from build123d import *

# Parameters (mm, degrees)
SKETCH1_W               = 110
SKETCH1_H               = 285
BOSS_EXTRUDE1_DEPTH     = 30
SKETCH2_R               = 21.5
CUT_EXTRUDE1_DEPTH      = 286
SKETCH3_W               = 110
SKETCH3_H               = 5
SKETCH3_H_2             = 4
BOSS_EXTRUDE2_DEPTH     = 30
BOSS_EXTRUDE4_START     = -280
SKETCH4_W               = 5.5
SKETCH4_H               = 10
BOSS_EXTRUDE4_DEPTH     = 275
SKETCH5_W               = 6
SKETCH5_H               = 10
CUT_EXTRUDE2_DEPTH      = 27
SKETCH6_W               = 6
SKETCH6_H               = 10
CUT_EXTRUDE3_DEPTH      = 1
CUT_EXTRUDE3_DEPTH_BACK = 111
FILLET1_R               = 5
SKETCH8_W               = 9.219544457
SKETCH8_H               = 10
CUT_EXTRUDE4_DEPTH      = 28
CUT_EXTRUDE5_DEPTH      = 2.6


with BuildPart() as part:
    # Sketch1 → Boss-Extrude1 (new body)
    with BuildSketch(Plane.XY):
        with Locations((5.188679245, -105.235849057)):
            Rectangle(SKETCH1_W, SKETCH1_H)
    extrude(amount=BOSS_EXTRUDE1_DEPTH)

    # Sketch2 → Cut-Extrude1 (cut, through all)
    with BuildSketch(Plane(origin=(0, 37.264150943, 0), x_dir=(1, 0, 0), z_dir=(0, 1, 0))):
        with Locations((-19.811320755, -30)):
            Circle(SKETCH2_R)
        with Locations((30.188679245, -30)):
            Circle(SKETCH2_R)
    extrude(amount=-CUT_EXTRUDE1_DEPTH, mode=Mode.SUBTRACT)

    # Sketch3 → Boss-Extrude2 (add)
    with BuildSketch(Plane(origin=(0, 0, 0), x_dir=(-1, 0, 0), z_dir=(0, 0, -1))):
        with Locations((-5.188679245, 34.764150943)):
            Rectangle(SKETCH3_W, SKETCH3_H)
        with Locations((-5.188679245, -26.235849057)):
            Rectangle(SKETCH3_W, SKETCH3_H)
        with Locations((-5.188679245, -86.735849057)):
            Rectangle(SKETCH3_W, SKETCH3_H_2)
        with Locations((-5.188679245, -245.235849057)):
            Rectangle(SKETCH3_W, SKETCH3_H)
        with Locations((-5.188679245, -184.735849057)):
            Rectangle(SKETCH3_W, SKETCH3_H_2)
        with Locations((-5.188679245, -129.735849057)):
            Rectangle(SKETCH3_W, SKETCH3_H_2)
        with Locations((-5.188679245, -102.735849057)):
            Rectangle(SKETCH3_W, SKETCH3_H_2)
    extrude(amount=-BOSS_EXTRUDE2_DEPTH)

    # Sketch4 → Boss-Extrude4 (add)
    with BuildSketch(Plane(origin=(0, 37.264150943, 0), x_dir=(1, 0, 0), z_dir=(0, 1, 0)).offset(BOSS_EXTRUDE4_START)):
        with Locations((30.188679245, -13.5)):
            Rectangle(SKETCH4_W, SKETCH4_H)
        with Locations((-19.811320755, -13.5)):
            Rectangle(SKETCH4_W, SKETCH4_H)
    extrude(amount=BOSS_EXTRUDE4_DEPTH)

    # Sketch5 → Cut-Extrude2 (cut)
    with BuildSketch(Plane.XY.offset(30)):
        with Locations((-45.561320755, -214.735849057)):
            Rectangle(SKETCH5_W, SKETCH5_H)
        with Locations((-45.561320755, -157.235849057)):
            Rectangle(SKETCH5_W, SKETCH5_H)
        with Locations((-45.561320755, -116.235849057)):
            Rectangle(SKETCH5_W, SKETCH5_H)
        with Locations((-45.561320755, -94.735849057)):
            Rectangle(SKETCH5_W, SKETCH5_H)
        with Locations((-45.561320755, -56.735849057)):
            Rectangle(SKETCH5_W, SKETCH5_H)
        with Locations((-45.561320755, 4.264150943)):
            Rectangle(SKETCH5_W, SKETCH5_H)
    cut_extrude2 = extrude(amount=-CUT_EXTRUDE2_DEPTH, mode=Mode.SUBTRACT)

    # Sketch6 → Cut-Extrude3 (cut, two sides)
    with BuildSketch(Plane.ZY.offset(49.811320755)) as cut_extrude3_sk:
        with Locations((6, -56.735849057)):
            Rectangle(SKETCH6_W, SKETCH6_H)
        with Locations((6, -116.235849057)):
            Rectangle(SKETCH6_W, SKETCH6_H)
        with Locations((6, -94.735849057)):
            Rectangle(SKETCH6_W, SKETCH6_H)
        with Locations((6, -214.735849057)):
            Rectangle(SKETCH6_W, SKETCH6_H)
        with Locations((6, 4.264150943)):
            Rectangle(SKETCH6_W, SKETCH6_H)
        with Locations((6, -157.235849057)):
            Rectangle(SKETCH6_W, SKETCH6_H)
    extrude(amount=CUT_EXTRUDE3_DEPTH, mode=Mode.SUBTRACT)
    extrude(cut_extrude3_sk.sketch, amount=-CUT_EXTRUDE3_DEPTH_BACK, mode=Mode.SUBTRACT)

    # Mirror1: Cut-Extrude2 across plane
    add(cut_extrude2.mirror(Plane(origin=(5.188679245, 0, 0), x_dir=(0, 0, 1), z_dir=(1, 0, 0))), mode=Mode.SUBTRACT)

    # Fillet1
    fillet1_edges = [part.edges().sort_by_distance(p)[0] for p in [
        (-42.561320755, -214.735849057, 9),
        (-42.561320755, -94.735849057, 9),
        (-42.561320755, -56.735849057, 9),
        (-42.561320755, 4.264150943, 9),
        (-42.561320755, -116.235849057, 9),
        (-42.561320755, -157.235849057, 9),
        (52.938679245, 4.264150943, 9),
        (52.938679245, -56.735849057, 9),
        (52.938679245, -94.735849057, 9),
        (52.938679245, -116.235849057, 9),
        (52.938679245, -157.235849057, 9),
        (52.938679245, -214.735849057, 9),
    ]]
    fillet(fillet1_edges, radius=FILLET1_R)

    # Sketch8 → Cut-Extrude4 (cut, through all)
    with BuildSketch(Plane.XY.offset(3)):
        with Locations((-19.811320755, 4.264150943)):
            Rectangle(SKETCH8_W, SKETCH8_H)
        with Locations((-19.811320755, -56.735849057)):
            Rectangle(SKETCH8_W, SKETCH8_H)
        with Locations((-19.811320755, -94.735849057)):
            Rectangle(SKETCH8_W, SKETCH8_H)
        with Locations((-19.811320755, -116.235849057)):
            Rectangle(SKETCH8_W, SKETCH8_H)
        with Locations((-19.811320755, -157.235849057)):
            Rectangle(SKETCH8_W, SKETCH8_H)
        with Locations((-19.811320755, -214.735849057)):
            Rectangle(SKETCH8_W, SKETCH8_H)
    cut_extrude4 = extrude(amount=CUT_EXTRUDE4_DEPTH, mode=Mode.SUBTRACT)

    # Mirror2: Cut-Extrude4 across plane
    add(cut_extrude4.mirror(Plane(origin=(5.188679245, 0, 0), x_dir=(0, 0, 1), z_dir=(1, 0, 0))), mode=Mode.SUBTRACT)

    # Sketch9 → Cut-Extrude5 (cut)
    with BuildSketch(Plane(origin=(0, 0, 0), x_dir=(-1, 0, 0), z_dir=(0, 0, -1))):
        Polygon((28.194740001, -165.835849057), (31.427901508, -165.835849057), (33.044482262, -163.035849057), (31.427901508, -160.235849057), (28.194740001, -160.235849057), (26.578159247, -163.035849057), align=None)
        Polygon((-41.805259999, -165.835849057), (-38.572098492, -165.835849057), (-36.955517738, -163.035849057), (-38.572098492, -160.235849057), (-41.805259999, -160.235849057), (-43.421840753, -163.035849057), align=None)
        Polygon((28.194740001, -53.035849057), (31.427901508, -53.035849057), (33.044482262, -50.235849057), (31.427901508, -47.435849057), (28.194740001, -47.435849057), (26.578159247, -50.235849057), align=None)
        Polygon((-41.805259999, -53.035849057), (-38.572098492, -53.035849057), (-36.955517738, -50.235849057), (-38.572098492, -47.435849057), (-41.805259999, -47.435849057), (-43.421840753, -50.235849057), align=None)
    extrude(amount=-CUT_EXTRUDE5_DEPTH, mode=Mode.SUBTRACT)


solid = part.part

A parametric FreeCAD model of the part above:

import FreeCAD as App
import Part
import Sketcher

V = App.Vector
Q = App.Units.Quantity


def edges_at(feature, points):
    """Names of the edges that pass closest to the given points."""
    edges = feature.Shape.Edges
    near = lambda p: min(range(len(edges)), key=lambda i: edges[i].distToShape(Part.Vertex(*p))[0])
    return sorted({f"Edge{near(p) + 1}" for p in points})


def add_polygon(sketch, points):
    """Adds a closed chain of lines whose ends are joined by coincident constraints."""
    first, n = sketch.GeometryCount, len(points)
    for a, b in zip(points, points[1:] + points[:1]):
        sketch.addGeometry(Part.LineSegment(App.Vector(*a, 0), App.Vector(*b, 0)), False)
    for i in range(n):
        sketch.addConstraint(Sketcher.Constraint("Coincident", first + i, 2, first + (i + 1) % n, 1))

doc = App.newDocument("Part")
body = doc.addObject("PartDesign::Body", "Body")

# Sketch on XY plane
sketch1 = body.newObject("Sketcher::SketchObject", "Sketch")
sketch1.AttachmentSupport = (doc.getObject("XY_Plane"), [""])
sketch1.MapMode = "FlatFace"
add_polygon(sketch1, [(-50, 37), (-50, -248), (60, -248), (60, 37)])  # lines 0-3
sketch1.addConstraint([
    Sketcher.Constraint("Vertical", 0),
    Sketcher.Constraint("Horizontal", 1),
    Sketcher.Constraint("Vertical", 2),
    Sketcher.Constraint("Horizontal", 3),
    Sketcher.Constraint("DistanceX", 1, 1, 1, 2, Q("110 mm")),
    Sketcher.Constraint("DistanceY", 0, 2, 0, 1, Q("285 mm")),
    Sketcher.Constraint("DistanceX", 0, 2, -1, 1, Q("49.811321 mm")),
    Sketcher.Constraint("DistanceY", 0, 2, -1, 1, Q("247.735849 mm")),
])
pad1 = body.newObject("PartDesign::Pad", "Pad")
pad1.Profile = sketch1
pad1.Length = 30

# Sketch on XZ plane
sketch2 = body.newObject("Sketcher::SketchObject", "Sketch001")
sketch2.AttachmentSupport = (doc.getObject("XZ_Plane"), [""])
sketch2.MapMode = "FlatFace"
sketch2.AttachmentOffset = App.Placement(V(0, 0, -37.264151), App.Rotation())
sketch2.addGeometry([
    Part.Circle(V(-20, 30, 0), V(0, 0, 1), 22),
    Part.Circle(V(30, 30, 0), V(0, 0, 1), 22),
], False)
sketch2.addConstraint([
    Sketcher.Constraint("Equal", 0, 1),
    Sketcher.Constraint("Horizontal", 0, 3, 1, 3),
    Sketcher.Constraint("Diameter", 0, Q("43 mm")),
    Sketcher.Constraint("DistanceY", -1, 1, 0, 3, Q("30 mm")),
    Sketcher.Constraint("DistanceX", 0, 3, 1, 3, Q("50 mm")),
    Sketcher.Constraint("DistanceX", 0, 3, -1, 1, Q("19.811321 mm")),
])
pocket1 = body.newObject("PartDesign::Pocket", "Pocket")
pocket1.Profile = sketch2
pocket1.Type = "ThroughAll"
pocket1.Reversed = True

# Sketch on XY plane
sketch3 = body.newObject("Sketcher::SketchObject", "Sketch002")
sketch3.AttachmentSupport = (doc.getObject("XY_Plane"), [""])
sketch3.MapMode = "FlatFace"
add_polygon(sketch3, [(60.2, 37.3), (60.2, 32.3), (-49.8, 32.3), (-49.8, 37.3)])  # lines 0-3
add_polygon(sketch3, [(60.2, -23.7), (60.2, -28.7), (-49.8, -28.7), (-49.8, -23.7)])  # lines 4-7
add_polygon(sketch3, [(60.2, -84.7), (60.2, -88.7), (-49.8, -88.7), (-49.8, -84.7)])  # lines 8-11
add_polygon(sketch3, [(60.2, -242.7), (60.2, -247.7), (-49.8, -247.7), (-49.8, -242.7)])  # lines 12-15
add_polygon(sketch3, [(60.2, -182.7), (60.2, -186.7), (-49.8, -186.7), (-49.8, -182.7)])  # lines 16-19
add_polygon(sketch3, [(60.2, -127.7), (60.2, -131.7), (-49.8, -131.7), (-49.8, -127.7)])  # lines 20-23
add_polygon(sketch3, [(60.2, -100.7), (60.2, -104.7), (-49.8, -104.7), (-49.8, -100.7)])  # lines 24-27
sketch3.addConstraint([
    Sketcher.Constraint("Vertical", 0),
    Sketcher.Constraint("Horizontal", 1),
    Sketcher.Constraint("Vertical", 2),
    Sketcher.Constraint("Horizontal", 3),
    Sketcher.Constraint("Vertical", 4),
    Sketcher.Constraint("Horizontal", 5),
    Sketcher.Constraint("Vertical", 6),
    Sketcher.Constraint("Horizontal", 7),
    Sketcher.Constraint("Vertical", 8),
    Sketcher.Constraint("Horizontal", 9),
    Sketcher.Constraint("Vertical", 10),
    Sketcher.Constraint("Horizontal", 11),
    Sketcher.Constraint("Vertical", 12),
    Sketcher.Constraint("Horizontal", 13),
    Sketcher.Constraint("Vertical", 14),
    Sketcher.Constraint("Horizontal", 15),
    Sketcher.Constraint("Vertical", 16),
    Sketcher.Constraint("Horizontal", 17),
    Sketcher.Constraint("Vertical", 18),
    Sketcher.Constraint("Horizontal", 19),
    Sketcher.Constraint("Vertical", 20),
    Sketcher.Constraint("Horizontal", 21),
    Sketcher.Constraint("Vertical", 22),
    Sketcher.Constraint("Horizontal", 23),
    Sketcher.Constraint("Vertical", 24),
    Sketcher.Constraint("Horizontal", 25),
    Sketcher.Constraint("Vertical", 26),
    Sketcher.Constraint("Horizontal", 27),
    Sketcher.Constraint("Vertical", 3, 2, 4, 2),
    Sketcher.Constraint("Vertical", 2, 2, 5, 2),
    Sketcher.Constraint("Vertical", 7, 2, 8, 2),
    Sketcher.Constraint("Vertical", 6, 2, 9, 2),
    Sketcher.Constraint("Vertical", 11, 2, 12, 2),
    Sketcher.Constraint("Vertical", 10, 2, 13, 2),
    Sketcher.Constraint("Vertical", 15, 2, 16, 2),
    Sketcher.Constraint("Vertical", 14, 2, 17, 2),
    Sketcher.Constraint("Vertical", 19, 2, 20, 2),
    Sketcher.Constraint("Vertical", 18, 2, 21, 2),
    Sketcher.Constraint("Vertical", 23, 2, 24, 2),
    Sketcher.Constraint("Vertical", 22, 2, 25, 2),
    Sketcher.Constraint("Equal", 2, 4),
    Sketcher.Constraint("Equal", 6, 12),
    Sketcher.Constraint("Equal", 10, 16),
    Sketcher.Constraint("Equal", 18, 20),
    Sketcher.Constraint("Equal", 22, 24),
    Sketcher.Constraint("DistanceX", 1, 2, 1, 1, Q("110 mm")),
    Sketcher.Constraint("DistanceY", 0, 2, 0, 1, Q("5 mm")),
    Sketcher.Constraint("DistanceY", 8, 2, 8, 1, Q("4 mm")),
    Sketcher.Constraint("DistanceY", 4, 2, 0, 2, Q("61 mm")),
    Sketcher.Constraint("DistanceY", 8, 2, 4, 2, Q("60 mm")),
    Sketcher.Constraint("DistanceY", 12, 2, 8, 2, Q("159 mm")),
    Sketcher.Constraint("DistanceY", 15, 2, 16, 2, Q("56 mm")),
    Sketcher.Constraint("DistanceY", 20, 2, 8, 2, Q("43 mm")),
    Sketcher.Constraint("DistanceY", 24, 2, 8, 2, Q("16 mm")),
    Sketcher.Constraint("DistanceX", -1, 1, 0, 2, Q("60.188679 mm")),
    Sketcher.Constraint("DistanceY", -1, 1, 0, 2, Q("32.264151 mm")),
])
pad2 = body.newObject("PartDesign::Pad", "Pad001")
pad2.Profile = sketch3
pad2.Length = 30

# Sketch on XZ plane
sketch4 = body.newObject("Sketcher::SketchObject", "Sketch003")
sketch4.AttachmentSupport = (doc.getObject("XZ_Plane"), [""])
sketch4.MapMode = "FlatFace"
sketch4.AttachmentOffset = App.Placement(V(0, 0, 242.735849), App.Rotation())
add_polygon(sketch4, [(27, 8), (27, 18), (33, 18), (33, 8)])  # lines 0-3
add_polygon(sketch4, [(-23, 8), (-23, 18), (-17, 18), (-17, 8)])  # lines 4-7
sketch4.addConstraint([
    Sketcher.Constraint("Vertical", 0),
    Sketcher.Constraint("Horizontal", 1),
    Sketcher.Constraint("Vertical", 2),
    Sketcher.Constraint("Horizontal", 3),
    Sketcher.Constraint("Vertical", 4),
    Sketcher.Constraint("Horizontal", 5),
    Sketcher.Constraint("Vertical", 6),
    Sketcher.Constraint("Horizontal", 7),
    Sketcher.Constraint("Horizontal", 1, 2, 4, 2),
    Sketcher.Constraint("Horizontal", 3, 2, 6, 2),
    Sketcher.Constraint("Equal", 3, 5),
    Sketcher.Constraint("DistanceY", 0, 1, 0, 2, Q("10 mm")),
    Sketcher.Constraint("DistanceX", 1, 1, 1, 2, Q("5.5 mm")),
    Sketcher.Constraint("DistanceX", 4, 2, 0, 2, Q("50 mm")),
    Sketcher.Constraint("DistanceY", -1, 1, 0, 2, Q("18.5 mm")),
    Sketcher.Constraint("DistanceX", -1, 1, 0, 2, Q("27.438679 mm")),
])
pad3 = body.newObject("PartDesign::Pad", "Pad002")
pad3.Profile = sketch4
pad3.Length = 275
pad3.Reversed = True

# Sketch on XY plane
sketch5 = body.newObject("Sketcher::SketchObject", "Sketch004")
sketch5.AttachmentSupport = (doc.getObject("XY_Plane"), [""])
sketch5.MapMode = "FlatFace"
sketch5.AttachmentOffset = App.Placement(V(0, 0, 30), App.Rotation())
add_polygon(sketch5, [(-49, -210), (-49, -220), (-43, -220), (-43, -210)])  # lines 0-3
add_polygon(sketch5, [(-49, -152), (-49, -162), (-43, -162), (-43, -152)])  # lines 4-7
add_polygon(sketch5, [(-49, -111), (-49, -121), (-43, -121), (-43, -111)])  # lines 8-11
add_polygon(sketch5, [(-49, -90), (-49, -100), (-43, -100), (-43, -90)])  # lines 12-15
add_polygon(sketch5, [(-49, -52), (-49, -62), (-43, -62), (-43, -52)])  # lines 16-19
add_polygon(sketch5, [(-49, 9), (-49, -1), (-43, -1), (-43, 9)])  # lines 20-23
sketch5.addConstraint([
    Sketcher.Constraint("Vertical", 0),
    Sketcher.Constraint("Horizontal", 1),
    Sketcher.Constraint("Vertical", 2),
    Sketcher.Constraint("Horizontal", 3),
    Sketcher.Constraint("Vertical", 4),
    Sketcher.Constraint("Horizontal", 5),
    Sketcher.Constraint("Vertical", 6),
    Sketcher.Constraint("Horizontal", 7),
    Sketcher.Constraint("Vertical", 8),
    Sketcher.Constraint("Horizontal", 9),
    Sketcher.Constraint("Vertical", 10),
    Sketcher.Constraint("Horizontal", 11),
    Sketcher.Constraint("Vertical", 12),
    Sketcher.Constraint("Horizontal", 13),
    Sketcher.Constraint("Vertical", 14),
    Sketcher.Constraint("Horizontal", 15),
    Sketcher.Constraint("Vertical", 16),
    Sketcher.Constraint("Horizontal", 17),
    Sketcher.Constraint("Vertical", 18),
    Sketcher.Constraint("Horizontal", 19),
    Sketcher.Constraint("Vertical", 20),
    Sketcher.Constraint("Horizontal", 21),
    Sketcher.Constraint("Vertical", 22),
    Sketcher.Constraint("Horizontal", 23),
    Sketcher.Constraint("Vertical", 3, 2, 4, 2),
    Sketcher.Constraint("Vertical", 2, 2, 5, 2),
    Sketcher.Constraint("Vertical", 7, 2, 8, 2),
    Sketcher.Constraint("Vertical", 6, 2, 9, 2),
    Sketcher.Constraint("Vertical", 11, 2, 12, 2),
    Sketcher.Constraint("Vertical", 10, 2, 13, 2),
    Sketcher.Constraint("Vertical", 15, 2, 16, 2),
    Sketcher.Constraint("Vertical", 14, 2, 17, 2),
    Sketcher.Constraint("Vertical", 19, 2, 20, 2),
    Sketcher.Constraint("Vertical", 18, 2, 21, 2),
    Sketcher.Constraint("Equal", 2, 4),
    Sketcher.Constraint("Equal", 6, 8),
    Sketcher.Constraint("Equal", 10, 12),
    Sketcher.Constraint("Equal", 14, 16),
    Sketcher.Constraint("Equal", 18, 20),
    Sketcher.Constraint("DistanceX", 1, 1, 1, 2, Q("6 mm")),
    Sketcher.Constraint("DistanceY", 0, 2, 0, 1, Q("10 mm")),
    Sketcher.Constraint("DistanceY", 7, 2, 8, 2, Q("31 mm")),
    Sketcher.Constraint("DistanceY", 15, 2, 16, 2, Q("28 mm")),
    Sketcher.Constraint("DistanceY", 19, 2, 20, 2, Q("51 mm")),
    Sketcher.Constraint("DistanceY", 3, 2, 4, 2, Q("47.5 mm")),
    Sketcher.Constraint("DistanceY", 11, 2, 12, 2, Q("11.5 mm")),
    Sketcher.Constraint("DistanceX", 0, 2, -1, 1, Q("48.561321 mm")),
    Sketcher.Constraint("DistanceY", 0, 2, -1, 1, Q("219.735849 mm")),
])
pocket2 = body.newObject("PartDesign::Pocket", "Pocket001")
pocket2.Profile = sketch5
pocket2.Length = 27

# Sketch on YZ plane
sketch6 = body.newObject("Sketcher::SketchObject", "Sketch005")
sketch6.AttachmentSupport = (doc.getObject("YZ_Plane"), [""])
sketch6.MapMode = "FlatFace"
sketch6.AttachmentOffset = App.Placement(V(0, 0, -49.811321), App.Rotation())
add_polygon(sketch6, [(-52, 3), (-62, 3), (-62, 9), (-52, 9)])  # lines 0-3
add_polygon(sketch6, [(-111, 3), (-121, 3), (-121, 9), (-111, 9)])  # lines 4-7
add_polygon(sketch6, [(-90, 3), (-100, 3), (-100, 9), (-90, 9)])  # lines 8-11
add_polygon(sketch6, [(-210, 3), (-220, 3), (-220, 9), (-210, 9)])  # lines 12-15
add_polygon(sketch6, [(9, 3), (-1, 3), (-1, 9), (9, 9)])  # lines 16-19
add_polygon(sketch6, [(-152, 3), (-162, 3), (-162, 9), (-152, 9)])  # lines 20-23
sketch6.addConstraint([
    Sketcher.Constraint("Horizontal", 0),
    Sketcher.Constraint("Vertical", 1),
    Sketcher.Constraint("Horizontal", 2),
    Sketcher.Constraint("Vertical", 3),
    Sketcher.Constraint("Horizontal", 4),
    Sketcher.Constraint("Vertical", 5),
    Sketcher.Constraint("Horizontal", 6),
    Sketcher.Constraint("Vertical", 7),
    Sketcher.Constraint("Horizontal", 8),
    Sketcher.Constraint("Vertical", 9),
    Sketcher.Constraint("Horizontal", 10),
    Sketcher.Constraint("Vertical", 11),
    Sketcher.Constraint("Horizontal", 12),
    Sketcher.Constraint("Vertical", 13),
    Sketcher.Constraint("Horizontal", 14),
    Sketcher.Constraint("Vertical", 15),
    Sketcher.Constraint("Horizontal", 16),
    Sketcher.Constraint("Vertical", 17),
    Sketcher.Constraint("Horizontal", 18),
    Sketcher.Constraint("Vertical", 19),
    Sketcher.Constraint("Horizontal", 20),
    Sketcher.Constraint("Vertical", 21),
    Sketcher.Constraint("Horizontal", 22),
    Sketcher.Constraint("Vertical", 23),
    Sketcher.Constraint("Horizontal", 3, 2, 4, 2),
    Sketcher.Constraint("Horizontal", 2, 2, 5, 2),
    Sketcher.Constraint("Horizontal", 7, 2, 8, 2),
    Sketcher.Constraint("Horizontal", 6, 2, 9, 2),
    Sketcher.Constraint("Horizontal", 11, 2, 12, 2),
    Sketcher.Constraint("Horizontal", 10, 2, 13, 2),
    Sketcher.Constraint("Horizontal", 15, 2, 16, 2),
    Sketcher.Constraint("Horizontal", 14, 2, 17, 2),
    Sketcher.Constraint("Horizontal", 19, 2, 20, 2),
    Sketcher.Constraint("Horizontal", 18, 2, 21, 2),
    Sketcher.Constraint("Equal", 2, 4),
    Sketcher.Constraint("Equal", 6, 8),
    Sketcher.Constraint("Equal", 10, 12),
    Sketcher.Constraint("Equal", 14, 16),
    Sketcher.Constraint("Equal", 18, 20),
    Sketcher.Constraint("DistanceX", 0, 2, 0, 1, Q("10 mm")),
    Sketcher.Constraint("DistanceY", 1, 1, 1, 2, Q("6 mm")),
    Sketcher.Constraint("DistanceY", -1, 1, 0, 2, Q("3 mm")),
    Sketcher.Constraint("DistanceX", 8, 2, 0, 2, Q("38 mm")),
    Sketcher.Constraint("DistanceX", 12, 2, 8, 2, Q("120 mm")),
    Sketcher.Constraint("DistanceX", 3, 2, 16, 2, Q("51 mm")),
    Sketcher.Constraint("DistanceX", 20, 2, 4, 2, Q("41 mm")),
    Sketcher.Constraint("DistanceX", 4, 2, 0, 2, Q("59.5 mm")),
    Sketcher.Constraint("DistanceX", 0, 2, -1, 1, Q("61.735849 mm")),
])
pocket3 = body.newObject("PartDesign::Pocket", "Pocket002")
pocket3.Profile = sketch6
pocket3.Type = "ThroughAll"
pocket3.Midplane = True
doc.recompute()

datumplane = body.newObject("PartDesign::Plane", "DatumPlane")
datumplane.AttachmentSupport = (doc.getObject("YZ_Plane"), [""])
datumplane.MapMode = "FlatFace"
datumplane.AttachmentOffset = App.Placement(V(0, 0, 5.188679), App.Rotation())
mirrored = body.newObject("PartDesign::Mirrored", "Mirrored")
mirrored.Originals = [pocket2]
mirrored.MirrorPlane = (datumplane, [""])
body.Tip = mirrored
doc.recompute()

fillet = body.newObject("PartDesign::Fillet", "Fillet")
fillet.Base = (mirrored, edges_at(mirrored, [
    (-42.561, -214.736, 9),
    (-42.561, -94.736, 9),
    (-42.561, -56.736, 9),
    (-42.561, 4.264, 9),
    (-42.561, -116.236, 9),
    (-42.561, -157.236, 9),
    (52.939, 4.264, 9),
    (52.939, -56.736, 9),
    (52.939, -94.736, 9),
    (52.939, -116.236, 9),
    (52.939, -157.236, 9),
    (52.939, -214.736, 9),
]))
fillet.Radius = 5

# Sketch on XY plane
sketch7 = body.newObject("Sketcher::SketchObject", "Sketch006")
sketch7.AttachmentSupport = (doc.getObject("XY_Plane"), [""])
sketch7.MapMode = "FlatFace"
sketch7.AttachmentOffset = App.Placement(V(0, 0, 3), App.Rotation())
add_polygon(sketch7, [(-24, 9), (-24, -1), (-15, -1), (-15, 9)])  # lines 0-3
add_polygon(sketch7, [(-24, -52), (-24, -62), (-15, -62), (-15, -52)])  # lines 4-7
add_polygon(sketch7, [(-24, -90), (-24, -100), (-15, -100), (-15, -90)])  # lines 8-11
add_polygon(sketch7, [(-24, -111), (-24, -121), (-15, -121), (-15, -111)])  # lines 12-15
add_polygon(sketch7, [(-24, -152), (-24, -162), (-15, -162), (-15, -152)])  # lines 16-19
add_polygon(sketch7, [(-24, -210), (-24, -220), (-15, -220), (-15, -210)])  # lines 20-23
sketch7.addConstraint([
    Sketcher.Constraint("Vertical", 0),
    Sketcher.Constraint("Horizontal", 1),
    Sketcher.Constraint("Vertical", 2),
    Sketcher.Constraint("Horizontal", 3),
    Sketcher.Constraint("Vertical", 4),
    Sketcher.Constraint("Horizontal", 5),
    Sketcher.Constraint("Vertical", 6),
    Sketcher.Constraint("Horizontal", 7),
    Sketcher.Constraint("Vertical", 8),
    Sketcher.Constraint("Horizontal", 9),
    Sketcher.Constraint("Vertical", 10),
    Sketcher.Constraint("Horizontal", 11),
    Sketcher.Constraint("Vertical", 12),
    Sketcher.Constraint("Horizontal", 13),
    Sketcher.Constraint("Vertical", 14),
    Sketcher.Constraint("Horizontal", 15),
    Sketcher.Constraint("Vertical", 16),
    Sketcher.Constraint("Horizontal", 17),
    Sketcher.Constraint("Vertical", 18),
    Sketcher.Constraint("Horizontal", 19),
    Sketcher.Constraint("Vertical", 20),
    Sketcher.Constraint("Horizontal", 21),
    Sketcher.Constraint("Vertical", 22),
    Sketcher.Constraint("Horizontal", 23),
    Sketcher.Constraint("Vertical", 3, 2, 4, 2),
    Sketcher.Constraint("Vertical", 2, 2, 5, 2),
    Sketcher.Constraint("Vertical", 7, 2, 8, 2),
    Sketcher.Constraint("Vertical", 6, 2, 9, 2),
    Sketcher.Constraint("Vertical", 11, 2, 12, 2),
    Sketcher.Constraint("Vertical", 10, 2, 13, 2),
    Sketcher.Constraint("Vertical", 15, 2, 16, 2),
    Sketcher.Constraint("Vertical", 14, 2, 17, 2),
    Sketcher.Constraint("Vertical", 19, 2, 20, 2),
    Sketcher.Constraint("Vertical", 18, 2, 21, 2),
    Sketcher.Constraint("Equal", 2, 4),
    Sketcher.Constraint("Equal", 6, 8),
    Sketcher.Constraint("Equal", 10, 12),
    Sketcher.Constraint("Equal", 14, 16),
    Sketcher.Constraint("Equal", 18, 20),
    Sketcher.Constraint("DistanceY", 0, 2, 0, 1, Q("10 mm")),
    Sketcher.Constraint("DistanceY", 4, 2, 0, 2, Q("61 mm")),
    Sketcher.Constraint("DistanceY", 8, 2, 4, 2, Q("38 mm")),
    Sketcher.Constraint("DistanceY", 16, 2, 12, 2, Q("41 mm")),
    Sketcher.Constraint("DistanceY", 12, 2, 8, 2, Q("21.5 mm")),
    Sketcher.Constraint("DistanceY", 20, 2, 16, 2, Q("57.5 mm")),
    Sketcher.Constraint("DistanceX", 1, 1, 1, 2, Q("9.219544 mm")),
    Sketcher.Constraint("DistanceY", 0, 2, -1, 1, Q("0.735849 mm")),
    Sketcher.Constraint("DistanceX", 1, 2, -1, 1, Q("15.201549 mm")),
])
pocket4 = body.newObject("PartDesign::Pocket", "Pocket003")
pocket4.Profile = sketch7
pocket4.Type = "ThroughAll"
pocket4.Reversed = True
doc.recompute()

datumplane2 = body.newObject("PartDesign::Plane", "DatumPlane001")
datumplane2.AttachmentSupport = (doc.getObject("YZ_Plane"), [""])
datumplane2.MapMode = "FlatFace"
datumplane2.AttachmentOffset = App.Placement(V(0, 0, 5.188679), App.Rotation())
mirrored2 = body.newObject("PartDesign::Mirrored", "Mirrored001")
mirrored2.Originals = [pocket4]
mirrored2.MirrorPlane = (datumplane2, [""])
body.Tip = mirrored2

# Sketch on XY plane
sketch8 = body.newObject("Sketcher::SketchObject", "Sketch007")
sketch8.AttachmentSupport = (doc.getObject("XY_Plane"), [""])
sketch8.MapMode = "FlatFace"
add_polygon(sketch8, [(-28.2, -165.8), (-31.4, -165.8), (-33, -163), (-31.4, -160.2), (-28.2, -160.2), (-26.6, -163)])  # lines 0-5
add_polygon(sketch8, [(41.8, -165.8), (38.6, -165.8), (37, -163), (38.6, -160.2), (41.8, -160.2), (43.4, -163)])  # lines 6-11
add_polygon(sketch8, [(-28.2, -53), (-31.4, -53), (-33, -50.2), (-31.4, -47.4), (-28.2, -47.4), (-26.6, -50.2)])  # lines 12-17
add_polygon(sketch8, [(41.8, -53), (38.6, -53), (37, -50.2), (38.6, -47.4), (41.8, -47.4), (43.4, -50.2)])  # lines 18-23
sketch8.addConstraint([
    Sketcher.Constraint("Horizontal", 0),
    Sketcher.Constraint("Horizontal", 3),
    Sketcher.Constraint("Horizontal", 6),
    Sketcher.Constraint("Horizontal", 9),
    Sketcher.Constraint("Horizontal", 12),
    Sketcher.Constraint("Horizontal", 15),
    Sketcher.Constraint("Horizontal", 18),
    Sketcher.Constraint("Horizontal", 21),
    Sketcher.Constraint("Parallel", 1, 4),
    Sketcher.Constraint("Parallel", 2, 5),
    Sketcher.Constraint("Parallel", 4, 7),
    Sketcher.Constraint("Parallel", 5, 8),
    Sketcher.Constraint("Parallel", 7, 10),
    Sketcher.Constraint("Parallel", 8, 11),
    Sketcher.Constraint("Parallel", 10, 13),
    Sketcher.Constraint("Parallel", 11, 14),
    Sketcher.Constraint("Parallel", 13, 16),
    Sketcher.Constraint("Parallel", 14, 17),
    Sketcher.Constraint("Parallel", 16, 19),
    Sketcher.Constraint("Parallel", 17, 20),
    Sketcher.Constraint("Parallel", 19, 22),
    Sketcher.Constraint("Parallel", 20, 23),
    Sketcher.Constraint("Horizontal", 1, 2, 4, 2),
    Sketcher.Constraint("Horizontal", 5, 2, 6, 2),
    Sketcher.Constraint("Horizontal", 4, 2, 7, 2),
    Sketcher.Constraint("Horizontal", 3, 2, 8, 2),
    Sketcher.Constraint("Horizontal", 7, 2, 10, 2),
    Sketcher.Constraint("Horizontal", 13, 2, 16, 2),
    Sketcher.Constraint("Horizontal", 17, 2, 18, 2),
    Sketcher.Constraint("Horizontal", 16, 2, 19, 2),
    Sketcher.Constraint("Horizontal", 15, 2, 20, 2),
    Sketcher.Constraint("Horizontal", 19, 2, 22, 2),
    Sketcher.Constraint("Vertical", 0, 2, 2, 2),
    Sketcher.Constraint("Vertical", 3, 2, 5, 2),
    Sketcher.Constraint("Vertical", 2, 2, 12, 2),
    Sketcher.Constraint("Vertical", 1, 2, 13, 2),
    Sketcher.Constraint("Vertical", 12, 2, 14, 2),
    Sketcher.Constraint("Vertical", 5, 2, 15, 2),
    Sketcher.Constraint("Vertical", 8, 2, 18, 2),
    Sketcher.Constraint("Vertical", 11, 2, 21, 2),
    Sketcher.Constraint("Equal", 3, 6),
    Sketcher.Constraint("Angle", 1, Q("120 deg")),
    Sketcher.Constraint("DistanceX", 0, 2, 6, 2, Q("70 mm")),
    Sketcher.Constraint("DistanceY", 1, 2, 12, 2, Q("110 mm")),
    Sketcher.Constraint("DistanceY", 0, 2, 1, 2, Q("2.8 mm")),
    Sketcher.Constraint("DistanceX", 0, 2, 0, 1, Q("3.233162 mm")),
    Sketcher.Constraint("DistanceX", 0, 2, -1, 1, Q("31.427902 mm")),
    Sketcher.Constraint("DistanceY", 0, 2, -1, 1, Q("165.835849 mm")),
])
pocket5 = body.newObject("PartDesign::Pocket", "Pocket004")
pocket5.Profile = sketch8
pocket5.Length = 2.6
pocket5.Reversed = True

doc.recompute()
